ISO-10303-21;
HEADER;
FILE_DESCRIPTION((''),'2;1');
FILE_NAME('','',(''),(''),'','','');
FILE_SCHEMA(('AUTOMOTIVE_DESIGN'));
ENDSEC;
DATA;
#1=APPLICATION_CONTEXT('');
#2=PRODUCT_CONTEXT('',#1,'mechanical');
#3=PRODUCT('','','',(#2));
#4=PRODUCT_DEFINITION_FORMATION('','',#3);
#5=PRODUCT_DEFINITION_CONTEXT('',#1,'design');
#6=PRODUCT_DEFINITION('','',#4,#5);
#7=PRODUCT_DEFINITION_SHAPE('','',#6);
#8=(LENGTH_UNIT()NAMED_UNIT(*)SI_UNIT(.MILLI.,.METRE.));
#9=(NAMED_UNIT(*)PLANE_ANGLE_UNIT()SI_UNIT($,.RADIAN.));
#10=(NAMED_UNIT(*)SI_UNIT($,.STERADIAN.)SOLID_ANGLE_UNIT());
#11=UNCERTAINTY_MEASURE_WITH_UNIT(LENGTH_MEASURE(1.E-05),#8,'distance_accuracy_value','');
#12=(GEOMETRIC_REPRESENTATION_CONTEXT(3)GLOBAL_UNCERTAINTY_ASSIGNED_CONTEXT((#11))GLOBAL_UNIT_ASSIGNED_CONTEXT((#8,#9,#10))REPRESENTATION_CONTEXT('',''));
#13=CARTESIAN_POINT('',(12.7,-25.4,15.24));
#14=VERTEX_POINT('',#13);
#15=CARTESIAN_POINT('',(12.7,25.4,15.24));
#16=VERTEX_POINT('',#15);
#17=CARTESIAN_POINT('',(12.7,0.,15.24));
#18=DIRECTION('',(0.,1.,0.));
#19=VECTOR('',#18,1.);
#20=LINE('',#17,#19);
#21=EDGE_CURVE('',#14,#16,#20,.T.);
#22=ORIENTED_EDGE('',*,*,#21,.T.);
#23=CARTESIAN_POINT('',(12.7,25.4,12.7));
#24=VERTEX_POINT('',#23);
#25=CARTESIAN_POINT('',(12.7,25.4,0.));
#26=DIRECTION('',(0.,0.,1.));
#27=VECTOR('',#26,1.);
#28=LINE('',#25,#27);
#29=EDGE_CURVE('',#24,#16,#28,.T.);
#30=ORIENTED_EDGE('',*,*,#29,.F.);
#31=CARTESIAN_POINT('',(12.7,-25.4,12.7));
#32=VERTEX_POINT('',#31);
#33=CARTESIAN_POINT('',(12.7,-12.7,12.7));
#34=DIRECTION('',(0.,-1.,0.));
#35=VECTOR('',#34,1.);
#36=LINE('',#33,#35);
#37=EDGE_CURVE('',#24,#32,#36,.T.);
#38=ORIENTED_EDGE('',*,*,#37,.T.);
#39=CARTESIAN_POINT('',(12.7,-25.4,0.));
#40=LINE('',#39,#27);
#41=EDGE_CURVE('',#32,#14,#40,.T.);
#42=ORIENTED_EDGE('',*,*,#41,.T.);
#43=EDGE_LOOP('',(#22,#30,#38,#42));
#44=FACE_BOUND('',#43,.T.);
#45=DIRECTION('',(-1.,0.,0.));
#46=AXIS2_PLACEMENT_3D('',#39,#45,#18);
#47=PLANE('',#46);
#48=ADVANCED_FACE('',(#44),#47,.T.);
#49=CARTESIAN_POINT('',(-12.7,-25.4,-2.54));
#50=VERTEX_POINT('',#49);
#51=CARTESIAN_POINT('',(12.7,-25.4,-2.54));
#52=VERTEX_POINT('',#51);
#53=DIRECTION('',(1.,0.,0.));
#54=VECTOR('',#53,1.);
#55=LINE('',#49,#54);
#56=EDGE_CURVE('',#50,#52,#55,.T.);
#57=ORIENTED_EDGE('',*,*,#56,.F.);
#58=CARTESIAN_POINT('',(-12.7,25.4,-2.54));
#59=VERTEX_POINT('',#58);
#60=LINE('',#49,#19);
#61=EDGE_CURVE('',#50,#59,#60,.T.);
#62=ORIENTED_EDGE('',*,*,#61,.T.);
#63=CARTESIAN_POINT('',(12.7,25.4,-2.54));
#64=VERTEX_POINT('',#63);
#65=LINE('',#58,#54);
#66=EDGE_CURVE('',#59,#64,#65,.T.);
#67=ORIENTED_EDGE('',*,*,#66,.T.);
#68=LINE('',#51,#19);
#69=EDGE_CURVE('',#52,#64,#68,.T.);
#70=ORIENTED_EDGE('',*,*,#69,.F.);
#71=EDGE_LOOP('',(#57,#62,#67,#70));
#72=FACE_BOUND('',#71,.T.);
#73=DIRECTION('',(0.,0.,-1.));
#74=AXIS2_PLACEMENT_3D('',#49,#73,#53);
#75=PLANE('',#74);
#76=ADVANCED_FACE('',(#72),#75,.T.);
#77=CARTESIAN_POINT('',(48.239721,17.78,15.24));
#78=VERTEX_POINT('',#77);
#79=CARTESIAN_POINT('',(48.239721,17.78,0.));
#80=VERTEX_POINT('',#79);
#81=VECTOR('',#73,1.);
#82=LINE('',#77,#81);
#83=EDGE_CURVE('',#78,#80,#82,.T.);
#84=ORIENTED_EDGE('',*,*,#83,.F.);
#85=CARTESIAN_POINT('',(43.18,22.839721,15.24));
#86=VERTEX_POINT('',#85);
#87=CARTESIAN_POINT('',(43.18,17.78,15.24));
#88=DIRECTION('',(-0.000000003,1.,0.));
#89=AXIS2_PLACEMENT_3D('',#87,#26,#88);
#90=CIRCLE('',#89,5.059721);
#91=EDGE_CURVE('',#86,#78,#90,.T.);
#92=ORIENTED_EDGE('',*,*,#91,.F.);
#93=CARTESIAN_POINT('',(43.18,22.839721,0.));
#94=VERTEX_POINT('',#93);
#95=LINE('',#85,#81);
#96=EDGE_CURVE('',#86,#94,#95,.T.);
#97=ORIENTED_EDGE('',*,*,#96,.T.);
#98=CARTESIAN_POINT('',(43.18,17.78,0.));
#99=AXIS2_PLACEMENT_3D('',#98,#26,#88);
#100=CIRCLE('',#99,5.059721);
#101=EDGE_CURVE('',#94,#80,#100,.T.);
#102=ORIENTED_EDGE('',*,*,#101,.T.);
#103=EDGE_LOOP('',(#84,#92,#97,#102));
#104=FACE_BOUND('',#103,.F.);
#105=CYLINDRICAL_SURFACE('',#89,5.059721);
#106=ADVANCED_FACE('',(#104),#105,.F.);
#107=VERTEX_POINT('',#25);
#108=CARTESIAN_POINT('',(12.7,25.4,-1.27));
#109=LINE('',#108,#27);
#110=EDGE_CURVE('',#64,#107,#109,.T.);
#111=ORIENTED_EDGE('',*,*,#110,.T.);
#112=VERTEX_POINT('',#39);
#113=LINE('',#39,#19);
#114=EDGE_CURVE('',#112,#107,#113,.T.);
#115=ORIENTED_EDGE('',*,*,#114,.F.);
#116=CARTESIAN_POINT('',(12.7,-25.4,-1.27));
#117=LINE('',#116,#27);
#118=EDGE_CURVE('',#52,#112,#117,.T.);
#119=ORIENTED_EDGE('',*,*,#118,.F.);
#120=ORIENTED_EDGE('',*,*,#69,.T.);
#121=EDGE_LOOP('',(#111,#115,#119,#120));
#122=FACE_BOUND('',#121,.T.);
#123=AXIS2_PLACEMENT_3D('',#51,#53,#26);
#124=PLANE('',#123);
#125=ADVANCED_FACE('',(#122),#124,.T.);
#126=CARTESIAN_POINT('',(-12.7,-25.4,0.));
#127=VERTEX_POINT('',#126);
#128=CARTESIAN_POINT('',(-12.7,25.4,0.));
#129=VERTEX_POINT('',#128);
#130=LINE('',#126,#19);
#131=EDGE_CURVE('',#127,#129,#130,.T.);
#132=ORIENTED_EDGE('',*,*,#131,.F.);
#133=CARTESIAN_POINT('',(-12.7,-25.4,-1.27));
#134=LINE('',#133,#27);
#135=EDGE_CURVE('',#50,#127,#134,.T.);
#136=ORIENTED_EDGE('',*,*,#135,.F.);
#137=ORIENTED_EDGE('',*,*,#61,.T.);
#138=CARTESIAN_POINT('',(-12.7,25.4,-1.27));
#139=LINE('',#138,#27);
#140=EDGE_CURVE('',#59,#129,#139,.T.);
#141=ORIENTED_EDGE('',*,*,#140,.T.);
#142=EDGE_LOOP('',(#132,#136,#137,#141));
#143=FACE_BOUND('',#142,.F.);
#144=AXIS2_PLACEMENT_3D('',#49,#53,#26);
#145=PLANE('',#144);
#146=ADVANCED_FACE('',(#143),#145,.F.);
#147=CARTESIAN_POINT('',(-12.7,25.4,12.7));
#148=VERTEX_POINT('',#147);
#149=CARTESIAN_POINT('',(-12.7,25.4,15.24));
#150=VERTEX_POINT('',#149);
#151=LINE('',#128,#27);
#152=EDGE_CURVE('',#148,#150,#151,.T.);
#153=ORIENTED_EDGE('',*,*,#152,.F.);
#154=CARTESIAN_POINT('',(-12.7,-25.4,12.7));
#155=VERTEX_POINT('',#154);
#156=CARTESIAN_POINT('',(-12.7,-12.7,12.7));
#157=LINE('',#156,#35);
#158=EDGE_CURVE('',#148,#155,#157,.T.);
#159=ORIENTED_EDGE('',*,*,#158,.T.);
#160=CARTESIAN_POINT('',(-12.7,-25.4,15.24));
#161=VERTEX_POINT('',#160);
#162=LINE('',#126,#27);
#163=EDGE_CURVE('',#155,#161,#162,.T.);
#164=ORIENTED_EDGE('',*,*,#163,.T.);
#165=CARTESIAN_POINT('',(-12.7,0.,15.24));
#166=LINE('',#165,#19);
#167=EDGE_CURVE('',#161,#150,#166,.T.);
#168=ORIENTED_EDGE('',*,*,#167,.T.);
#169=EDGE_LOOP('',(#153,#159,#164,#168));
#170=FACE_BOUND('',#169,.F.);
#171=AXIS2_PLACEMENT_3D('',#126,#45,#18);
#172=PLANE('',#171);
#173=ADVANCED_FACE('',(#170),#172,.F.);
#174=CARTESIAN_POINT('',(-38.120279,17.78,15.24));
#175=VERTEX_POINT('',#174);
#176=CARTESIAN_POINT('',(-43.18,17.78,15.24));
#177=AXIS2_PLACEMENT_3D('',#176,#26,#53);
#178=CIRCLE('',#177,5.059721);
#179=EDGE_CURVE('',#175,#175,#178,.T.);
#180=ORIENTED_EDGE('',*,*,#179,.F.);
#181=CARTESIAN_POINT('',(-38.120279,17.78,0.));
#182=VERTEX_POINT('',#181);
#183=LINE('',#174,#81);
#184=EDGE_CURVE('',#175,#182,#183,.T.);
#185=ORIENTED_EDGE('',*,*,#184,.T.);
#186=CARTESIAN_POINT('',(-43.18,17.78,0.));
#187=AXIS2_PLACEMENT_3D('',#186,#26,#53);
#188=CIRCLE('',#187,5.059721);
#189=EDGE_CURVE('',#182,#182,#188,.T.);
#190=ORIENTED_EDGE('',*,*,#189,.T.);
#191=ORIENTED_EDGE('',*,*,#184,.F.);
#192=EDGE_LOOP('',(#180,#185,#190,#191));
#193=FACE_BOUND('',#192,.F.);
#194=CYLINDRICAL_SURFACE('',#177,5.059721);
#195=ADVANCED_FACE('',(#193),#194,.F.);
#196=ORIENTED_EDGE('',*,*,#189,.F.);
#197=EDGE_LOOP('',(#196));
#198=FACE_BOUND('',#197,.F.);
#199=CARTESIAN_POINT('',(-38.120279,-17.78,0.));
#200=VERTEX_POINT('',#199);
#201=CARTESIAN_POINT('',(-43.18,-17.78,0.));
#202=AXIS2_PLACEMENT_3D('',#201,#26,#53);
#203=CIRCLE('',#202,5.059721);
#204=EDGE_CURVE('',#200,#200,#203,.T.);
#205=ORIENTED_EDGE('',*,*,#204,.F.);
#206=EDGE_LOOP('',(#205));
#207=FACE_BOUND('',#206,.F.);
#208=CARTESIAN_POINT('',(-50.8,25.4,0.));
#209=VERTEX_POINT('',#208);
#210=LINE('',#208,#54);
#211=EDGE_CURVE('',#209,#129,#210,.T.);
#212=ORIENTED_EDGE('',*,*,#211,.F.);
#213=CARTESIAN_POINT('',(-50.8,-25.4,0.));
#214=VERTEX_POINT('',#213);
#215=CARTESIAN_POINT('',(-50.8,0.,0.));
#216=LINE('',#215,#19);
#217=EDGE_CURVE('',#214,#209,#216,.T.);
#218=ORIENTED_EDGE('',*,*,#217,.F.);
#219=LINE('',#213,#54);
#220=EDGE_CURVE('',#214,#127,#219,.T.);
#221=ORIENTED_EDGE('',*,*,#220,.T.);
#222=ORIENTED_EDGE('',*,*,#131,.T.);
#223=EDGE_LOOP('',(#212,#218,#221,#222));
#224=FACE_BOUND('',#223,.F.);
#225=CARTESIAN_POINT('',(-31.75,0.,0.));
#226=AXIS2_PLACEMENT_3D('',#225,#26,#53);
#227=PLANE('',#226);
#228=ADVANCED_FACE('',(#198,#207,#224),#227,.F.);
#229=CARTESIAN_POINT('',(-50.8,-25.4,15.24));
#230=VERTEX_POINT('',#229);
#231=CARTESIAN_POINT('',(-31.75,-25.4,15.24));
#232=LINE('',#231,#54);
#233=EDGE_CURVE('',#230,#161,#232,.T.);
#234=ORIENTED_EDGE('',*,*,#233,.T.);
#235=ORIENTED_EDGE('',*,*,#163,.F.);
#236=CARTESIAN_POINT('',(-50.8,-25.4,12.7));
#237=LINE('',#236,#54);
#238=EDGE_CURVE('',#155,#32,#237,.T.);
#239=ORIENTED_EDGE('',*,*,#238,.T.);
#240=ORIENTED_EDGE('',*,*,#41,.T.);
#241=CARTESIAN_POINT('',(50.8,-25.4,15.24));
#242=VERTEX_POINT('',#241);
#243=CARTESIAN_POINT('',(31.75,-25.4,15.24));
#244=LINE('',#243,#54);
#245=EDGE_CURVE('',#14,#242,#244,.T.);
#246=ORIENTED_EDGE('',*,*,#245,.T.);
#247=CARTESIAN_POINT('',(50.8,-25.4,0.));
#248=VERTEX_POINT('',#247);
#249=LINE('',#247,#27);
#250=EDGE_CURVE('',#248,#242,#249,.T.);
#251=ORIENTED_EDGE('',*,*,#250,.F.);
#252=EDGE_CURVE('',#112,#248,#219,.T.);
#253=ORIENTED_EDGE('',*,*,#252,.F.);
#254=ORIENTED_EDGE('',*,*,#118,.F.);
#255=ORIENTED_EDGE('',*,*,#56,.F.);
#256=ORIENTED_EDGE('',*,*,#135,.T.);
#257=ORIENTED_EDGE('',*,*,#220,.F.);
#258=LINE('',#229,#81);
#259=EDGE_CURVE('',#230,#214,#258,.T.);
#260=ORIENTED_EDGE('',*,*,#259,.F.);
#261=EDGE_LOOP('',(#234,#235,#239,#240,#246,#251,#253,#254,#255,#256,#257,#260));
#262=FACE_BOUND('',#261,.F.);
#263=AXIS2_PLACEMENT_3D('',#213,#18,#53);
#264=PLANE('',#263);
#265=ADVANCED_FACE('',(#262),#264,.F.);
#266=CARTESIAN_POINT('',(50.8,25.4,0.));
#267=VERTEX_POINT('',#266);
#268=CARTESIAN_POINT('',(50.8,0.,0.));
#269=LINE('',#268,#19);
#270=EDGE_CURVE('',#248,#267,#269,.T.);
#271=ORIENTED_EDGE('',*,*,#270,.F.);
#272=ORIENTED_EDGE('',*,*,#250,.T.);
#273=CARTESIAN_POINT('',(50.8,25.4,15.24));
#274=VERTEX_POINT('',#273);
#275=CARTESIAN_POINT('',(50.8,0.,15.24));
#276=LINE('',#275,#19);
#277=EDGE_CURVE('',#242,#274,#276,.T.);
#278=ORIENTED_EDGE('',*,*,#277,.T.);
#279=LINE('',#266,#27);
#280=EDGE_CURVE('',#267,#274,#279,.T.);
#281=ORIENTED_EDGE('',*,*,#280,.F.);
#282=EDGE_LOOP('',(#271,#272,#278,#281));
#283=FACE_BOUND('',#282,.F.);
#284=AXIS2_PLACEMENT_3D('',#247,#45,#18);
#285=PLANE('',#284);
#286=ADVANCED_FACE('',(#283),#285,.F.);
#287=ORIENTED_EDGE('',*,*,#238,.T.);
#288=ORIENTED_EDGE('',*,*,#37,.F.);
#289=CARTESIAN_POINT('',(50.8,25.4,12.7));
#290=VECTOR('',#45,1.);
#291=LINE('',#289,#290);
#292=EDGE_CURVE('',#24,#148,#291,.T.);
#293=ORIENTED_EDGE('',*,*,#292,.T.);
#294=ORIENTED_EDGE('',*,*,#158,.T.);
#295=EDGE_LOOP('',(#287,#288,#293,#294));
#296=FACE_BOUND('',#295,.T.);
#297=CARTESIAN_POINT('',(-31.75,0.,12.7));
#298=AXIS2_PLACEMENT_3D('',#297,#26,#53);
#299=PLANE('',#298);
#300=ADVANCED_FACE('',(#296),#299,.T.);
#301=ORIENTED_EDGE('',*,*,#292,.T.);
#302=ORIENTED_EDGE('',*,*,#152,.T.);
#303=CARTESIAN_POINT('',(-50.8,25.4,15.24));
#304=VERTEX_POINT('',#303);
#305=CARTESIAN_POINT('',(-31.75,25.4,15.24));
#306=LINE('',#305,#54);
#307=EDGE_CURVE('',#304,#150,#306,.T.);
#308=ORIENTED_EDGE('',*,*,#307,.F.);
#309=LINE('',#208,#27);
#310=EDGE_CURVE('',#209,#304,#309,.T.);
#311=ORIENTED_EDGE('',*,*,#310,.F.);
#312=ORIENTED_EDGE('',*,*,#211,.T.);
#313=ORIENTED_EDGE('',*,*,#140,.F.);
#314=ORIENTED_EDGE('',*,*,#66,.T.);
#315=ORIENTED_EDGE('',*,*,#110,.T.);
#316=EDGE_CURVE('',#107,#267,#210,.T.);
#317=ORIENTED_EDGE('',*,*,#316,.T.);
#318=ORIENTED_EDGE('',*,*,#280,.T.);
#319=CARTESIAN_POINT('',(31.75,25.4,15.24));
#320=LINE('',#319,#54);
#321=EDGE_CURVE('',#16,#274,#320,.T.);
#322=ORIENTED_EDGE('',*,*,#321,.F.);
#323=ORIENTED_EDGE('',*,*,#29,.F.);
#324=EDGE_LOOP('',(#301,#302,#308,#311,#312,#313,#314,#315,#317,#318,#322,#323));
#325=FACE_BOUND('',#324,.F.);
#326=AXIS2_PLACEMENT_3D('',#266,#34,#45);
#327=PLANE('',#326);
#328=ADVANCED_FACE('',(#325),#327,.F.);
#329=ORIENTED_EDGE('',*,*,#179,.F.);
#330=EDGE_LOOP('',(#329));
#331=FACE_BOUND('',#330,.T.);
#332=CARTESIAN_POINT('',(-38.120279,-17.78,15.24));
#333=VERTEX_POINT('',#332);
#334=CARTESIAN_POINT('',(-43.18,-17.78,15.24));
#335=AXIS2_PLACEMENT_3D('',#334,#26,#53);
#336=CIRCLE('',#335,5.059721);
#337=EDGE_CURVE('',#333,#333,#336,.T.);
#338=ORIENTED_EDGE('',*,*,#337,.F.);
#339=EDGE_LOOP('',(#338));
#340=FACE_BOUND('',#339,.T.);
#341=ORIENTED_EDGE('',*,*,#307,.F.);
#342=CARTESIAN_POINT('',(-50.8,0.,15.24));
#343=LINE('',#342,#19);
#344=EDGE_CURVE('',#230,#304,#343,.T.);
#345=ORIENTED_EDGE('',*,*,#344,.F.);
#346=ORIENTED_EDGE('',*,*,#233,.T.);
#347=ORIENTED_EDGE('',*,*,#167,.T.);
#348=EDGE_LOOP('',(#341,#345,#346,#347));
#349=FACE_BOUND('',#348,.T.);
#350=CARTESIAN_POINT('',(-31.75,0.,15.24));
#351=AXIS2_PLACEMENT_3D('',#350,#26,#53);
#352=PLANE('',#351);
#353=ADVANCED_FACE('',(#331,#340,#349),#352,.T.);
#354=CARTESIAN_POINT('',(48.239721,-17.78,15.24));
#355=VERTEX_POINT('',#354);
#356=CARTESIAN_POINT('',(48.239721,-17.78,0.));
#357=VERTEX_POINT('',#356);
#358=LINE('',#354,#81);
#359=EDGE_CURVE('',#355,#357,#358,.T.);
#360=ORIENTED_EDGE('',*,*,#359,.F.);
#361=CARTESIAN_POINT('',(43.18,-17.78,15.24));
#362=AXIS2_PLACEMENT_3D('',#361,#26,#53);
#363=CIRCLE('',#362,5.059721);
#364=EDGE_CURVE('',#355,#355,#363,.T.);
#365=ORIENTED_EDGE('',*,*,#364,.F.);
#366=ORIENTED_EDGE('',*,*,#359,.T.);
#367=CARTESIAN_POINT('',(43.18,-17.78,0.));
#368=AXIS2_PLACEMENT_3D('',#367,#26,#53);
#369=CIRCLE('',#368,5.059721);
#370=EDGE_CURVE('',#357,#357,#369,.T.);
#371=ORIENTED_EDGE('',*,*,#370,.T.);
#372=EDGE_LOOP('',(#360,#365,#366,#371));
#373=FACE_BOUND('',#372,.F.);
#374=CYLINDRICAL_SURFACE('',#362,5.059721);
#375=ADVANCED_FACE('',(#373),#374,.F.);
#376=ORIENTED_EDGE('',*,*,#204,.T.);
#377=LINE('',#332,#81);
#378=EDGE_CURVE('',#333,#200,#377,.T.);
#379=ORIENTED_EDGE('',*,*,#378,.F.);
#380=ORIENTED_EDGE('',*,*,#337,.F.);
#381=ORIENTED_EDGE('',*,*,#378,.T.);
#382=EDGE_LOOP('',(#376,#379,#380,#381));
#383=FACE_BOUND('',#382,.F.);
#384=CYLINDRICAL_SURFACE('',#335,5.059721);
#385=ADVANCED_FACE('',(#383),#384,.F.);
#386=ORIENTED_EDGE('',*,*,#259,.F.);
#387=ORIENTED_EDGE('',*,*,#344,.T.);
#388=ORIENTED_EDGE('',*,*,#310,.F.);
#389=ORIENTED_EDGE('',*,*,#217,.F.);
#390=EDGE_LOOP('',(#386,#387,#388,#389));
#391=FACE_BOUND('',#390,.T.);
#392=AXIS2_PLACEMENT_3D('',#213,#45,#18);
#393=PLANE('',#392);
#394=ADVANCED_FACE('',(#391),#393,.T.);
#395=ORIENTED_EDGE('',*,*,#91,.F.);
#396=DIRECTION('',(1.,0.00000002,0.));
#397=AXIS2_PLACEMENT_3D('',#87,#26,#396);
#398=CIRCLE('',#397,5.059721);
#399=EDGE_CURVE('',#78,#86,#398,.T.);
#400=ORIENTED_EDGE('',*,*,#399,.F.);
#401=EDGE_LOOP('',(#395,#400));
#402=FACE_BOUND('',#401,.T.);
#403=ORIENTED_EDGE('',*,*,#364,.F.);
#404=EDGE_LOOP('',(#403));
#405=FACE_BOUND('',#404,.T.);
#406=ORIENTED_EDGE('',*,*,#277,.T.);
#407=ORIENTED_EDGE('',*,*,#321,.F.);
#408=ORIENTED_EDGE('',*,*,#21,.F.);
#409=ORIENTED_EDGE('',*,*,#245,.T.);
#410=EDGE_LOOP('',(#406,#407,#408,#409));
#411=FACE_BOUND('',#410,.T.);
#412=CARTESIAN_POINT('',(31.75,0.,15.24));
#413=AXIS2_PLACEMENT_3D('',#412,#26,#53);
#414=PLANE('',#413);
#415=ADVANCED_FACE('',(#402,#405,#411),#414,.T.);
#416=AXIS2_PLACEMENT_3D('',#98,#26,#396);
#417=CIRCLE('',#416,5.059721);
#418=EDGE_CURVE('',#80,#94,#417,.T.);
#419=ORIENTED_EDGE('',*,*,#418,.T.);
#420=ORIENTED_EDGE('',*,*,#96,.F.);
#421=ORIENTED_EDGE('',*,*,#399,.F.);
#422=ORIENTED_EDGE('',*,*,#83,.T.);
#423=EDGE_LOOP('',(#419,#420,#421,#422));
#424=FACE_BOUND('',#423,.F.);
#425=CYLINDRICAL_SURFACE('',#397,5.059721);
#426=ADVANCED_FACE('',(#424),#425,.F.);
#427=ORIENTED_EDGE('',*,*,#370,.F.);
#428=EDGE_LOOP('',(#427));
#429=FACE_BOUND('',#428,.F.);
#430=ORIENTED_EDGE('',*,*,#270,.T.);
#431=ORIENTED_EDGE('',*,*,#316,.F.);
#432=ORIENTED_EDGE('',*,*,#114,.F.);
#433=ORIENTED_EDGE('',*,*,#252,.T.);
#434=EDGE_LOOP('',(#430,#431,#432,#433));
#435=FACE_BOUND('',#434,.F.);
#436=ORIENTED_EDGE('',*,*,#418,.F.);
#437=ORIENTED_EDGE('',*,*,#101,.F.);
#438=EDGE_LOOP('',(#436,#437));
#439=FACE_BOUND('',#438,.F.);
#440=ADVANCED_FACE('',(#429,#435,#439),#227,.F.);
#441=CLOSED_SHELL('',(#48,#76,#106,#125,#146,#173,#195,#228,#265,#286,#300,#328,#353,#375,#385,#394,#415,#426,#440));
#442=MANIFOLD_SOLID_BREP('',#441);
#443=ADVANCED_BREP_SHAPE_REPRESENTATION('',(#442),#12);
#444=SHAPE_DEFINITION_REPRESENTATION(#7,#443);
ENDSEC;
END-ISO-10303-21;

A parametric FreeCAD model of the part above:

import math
import FreeCAD as App
import Part
import Sketcher

V = App.Vector
Q = App.Units.Quantity


def add_polygon(sketch, points):
    """Adds a closed chain of lines whose ends are joined by coincident constraints."""
    first, n = sketch.GeometryCount, len(points)
    for a, b in zip(points, points[1:] + points[:1]):
        sketch.addGeometry(Part.LineSegment(App.Vector(*a, 0), App.Vector(*b, 0)), False)
    for i in range(n):
        sketch.addConstraint(Sketcher.Constraint("Coincident", first + i, 2, first + (i + 1) % n, 1))

doc = App.newDocument("Part")
body = doc.addObject("PartDesign::Body", "Body")

# Sketch on XY plane
sketch1 = body.newObject("Sketcher::SketchObject", "Sketch")
sketch1.AttachmentSupport = (doc.getObject("XY_Plane"), [""])
sketch1.MapMode = "FlatFace"
add_polygon(sketch1, [(-51, 25), (-51, -25), (51, -25), (51, 25)])  # lines 0-3
sketch1.addConstraint([
    Sketcher.Constraint("Vertical", 0),
    Sketcher.Constraint("Horizontal", 1),
    Sketcher.Constraint("Vertical", 2),
    Sketcher.Constraint("Horizontal", 3),
    Sketcher.Constraint("Symmetric", 0, 2, 2, 2, -1, 1),
    Sketcher.Constraint("DistanceX", 1, 1, 1, 2, Q("4 in")),
    Sketcher.Constraint("DistanceY", 0, 2, 0, 1, Q("2 in")),
])
pad1 = body.newObject("PartDesign::Pad", "Pad")
pad1.Profile = sketch1
pad1.Length = Q("0.5 in")

# Sketch on XY plane
sketch2 = body.newObject("Sketcher::SketchObject", "Sketch001")
sketch2.AttachmentSupport = (doc.getObject("XY_Plane"), [""])
sketch2.MapMode = "FlatFace"
add_polygon(sketch2, [(13, 25), (13, -25), (51, -25), (51, 25)])  # lines 0-3
add_polygon(sketch2, [(-51, 25), (-51, -25), (-13, -25), (-13, 25)])  # lines 4-7
sketch2.addConstraint([
    Sketcher.Constraint("Vertical", 0),
    Sketcher.Constraint("Horizontal", 1),
    Sketcher.Constraint("Vertical", 2),
    Sketcher.Constraint("Horizontal", 3),
    Sketcher.Constraint("Vertical", 4),
    Sketcher.Constraint("Horizontal", 5),
    Sketcher.Constraint("Vertical", 6),
    Sketcher.Constraint("Horizontal", 7),
    Sketcher.Constraint("Symmetric", 2, 2, 4, 2, -1, 1),
    Sketcher.Constraint("Symmetric", 0, 2, 6, 2, -1, 1),
    Sketcher.Constraint("Horizontal", 1, 2, 4, 2),
    Sketcher.Constraint("DistanceY", 0, 2, 0, 1, Q("2 in")),
    Sketcher.Constraint("DistanceX", 1, 1, 1, 2, Q("1.5 in")),
    Sketcher.Constraint("DistanceX", -1, 1, 1, 2, Q("2 in")),
])
pad2 = body.newObject("PartDesign::Pad", "Pad001")
pad2.Profile = sketch2
pad2.Length = Q("0.6 in")

# Sketch on XZ plane
sketch3 = body.newObject("Sketcher::SketchObject", "Sketch002")
sketch3.AttachmentSupport = (doc.getObject("XZ_Plane"), [""])
sketch3.MapMode = "FlatFace"
sketch3.AttachmentOffset = App.Placement(V(0, 0, 1 * 25.4), App.Rotation())
add_polygon(sketch3, [(-12.7, 0), (-12.7, -2.5), (12.7, -2.5), (12.7, 0)])  # lines 0-3
sketch3.addConstraint([
    Sketcher.Constraint("Vertical", 0),
    Sketcher.Constraint("Horizontal", 1),
    Sketcher.Constraint("Vertical", 2),
    Sketcher.Constraint("Horizontal", 3),
    Sketcher.Constraint("Symmetric", 2, 2, 3, 2, -1, 1),
    Sketcher.Constraint("DistanceX", 1, 1, 1, 2, Q("1 in")),
    Sketcher.Constraint("DistanceY", 0, 2, 0, 1, Q("0.1 in")),
])
pad3 = body.newObject("PartDesign::Pad", "Pad002")
pad3.Profile = sketch3
pad3.Length = Q("2 in")
pad3.Reversed = True

# Sketch on XY plane
sketch4 = body.newObject("Sketcher::SketchObject", "Sketch003")
sketch4.AttachmentSupport = (doc.getObject("XY_Plane"), [""])
sketch4.MapMode = "FlatFace"
sketch4.AttachmentOffset = App.Placement(V(0, 0, 0.6 * 25.4), App.Rotation())
sketch4.addGeometry([
    Part.ArcOfCircle(Part.Circle(V(43, 18, 0), V(0, 0, 1), 5), math.radians(90), math.radians(360)),  # 0
    Part.ArcOfCircle(Part.Circle(V(43, 18, 0), V(0, 0, 1), 5), math.radians(0), math.radians(90)),  # 1
    Part.Circle(V(43, -18, 0), V(0, 0, 1), 5),  # 2
    Part.Circle(V(-43, 18, 0), V(0, 0, 1), 5),  # 3
    Part.Circle(V(-43, -18, 0), V(0, 0, 1), 5),  # 4
], False)
sketch4.addConstraint([
    Sketcher.Constraint("Tangent", 0, 1, 1, 2),
    Sketcher.Constraint("Coincident", 1, 1, 0, 2),
    Sketcher.Constraint("Equal", 1, 2),
    Sketcher.Constraint("Equal", 2, 3),
    Sketcher.Constraint("Equal", 3, 4),
    Sketcher.Constraint("Symmetric", 2, 3, 3, 3, -1, 1),
    Sketcher.Constraint("Symmetric", 0, 3, 4, 3, -1, 1),
    Sketcher.Constraint("Symmetric", 0, 3, 3, 3, -2),
    Sketcher.Constraint("Horizontal", 3, 3, 1, 1),
    Sketcher.Constraint("Vertical", 2, 3, 0, 1),
    Sketcher.Constraint("DistanceX", -1, 1, 0, 3, Q("1.7 in")),
    Sketcher.Constraint("DistanceY", -1, 1, 0, 3, Q("0.7 in")),
    Sketcher.Constraint("Diameter", 2, Q("10.119442 mm")),
])
pocket1 = body.newObject("PartDesign::Pocket", "Pocket")
pocket1.Profile = sketch4
pocket1.Type = "ThroughAll"

doc.recompute()
